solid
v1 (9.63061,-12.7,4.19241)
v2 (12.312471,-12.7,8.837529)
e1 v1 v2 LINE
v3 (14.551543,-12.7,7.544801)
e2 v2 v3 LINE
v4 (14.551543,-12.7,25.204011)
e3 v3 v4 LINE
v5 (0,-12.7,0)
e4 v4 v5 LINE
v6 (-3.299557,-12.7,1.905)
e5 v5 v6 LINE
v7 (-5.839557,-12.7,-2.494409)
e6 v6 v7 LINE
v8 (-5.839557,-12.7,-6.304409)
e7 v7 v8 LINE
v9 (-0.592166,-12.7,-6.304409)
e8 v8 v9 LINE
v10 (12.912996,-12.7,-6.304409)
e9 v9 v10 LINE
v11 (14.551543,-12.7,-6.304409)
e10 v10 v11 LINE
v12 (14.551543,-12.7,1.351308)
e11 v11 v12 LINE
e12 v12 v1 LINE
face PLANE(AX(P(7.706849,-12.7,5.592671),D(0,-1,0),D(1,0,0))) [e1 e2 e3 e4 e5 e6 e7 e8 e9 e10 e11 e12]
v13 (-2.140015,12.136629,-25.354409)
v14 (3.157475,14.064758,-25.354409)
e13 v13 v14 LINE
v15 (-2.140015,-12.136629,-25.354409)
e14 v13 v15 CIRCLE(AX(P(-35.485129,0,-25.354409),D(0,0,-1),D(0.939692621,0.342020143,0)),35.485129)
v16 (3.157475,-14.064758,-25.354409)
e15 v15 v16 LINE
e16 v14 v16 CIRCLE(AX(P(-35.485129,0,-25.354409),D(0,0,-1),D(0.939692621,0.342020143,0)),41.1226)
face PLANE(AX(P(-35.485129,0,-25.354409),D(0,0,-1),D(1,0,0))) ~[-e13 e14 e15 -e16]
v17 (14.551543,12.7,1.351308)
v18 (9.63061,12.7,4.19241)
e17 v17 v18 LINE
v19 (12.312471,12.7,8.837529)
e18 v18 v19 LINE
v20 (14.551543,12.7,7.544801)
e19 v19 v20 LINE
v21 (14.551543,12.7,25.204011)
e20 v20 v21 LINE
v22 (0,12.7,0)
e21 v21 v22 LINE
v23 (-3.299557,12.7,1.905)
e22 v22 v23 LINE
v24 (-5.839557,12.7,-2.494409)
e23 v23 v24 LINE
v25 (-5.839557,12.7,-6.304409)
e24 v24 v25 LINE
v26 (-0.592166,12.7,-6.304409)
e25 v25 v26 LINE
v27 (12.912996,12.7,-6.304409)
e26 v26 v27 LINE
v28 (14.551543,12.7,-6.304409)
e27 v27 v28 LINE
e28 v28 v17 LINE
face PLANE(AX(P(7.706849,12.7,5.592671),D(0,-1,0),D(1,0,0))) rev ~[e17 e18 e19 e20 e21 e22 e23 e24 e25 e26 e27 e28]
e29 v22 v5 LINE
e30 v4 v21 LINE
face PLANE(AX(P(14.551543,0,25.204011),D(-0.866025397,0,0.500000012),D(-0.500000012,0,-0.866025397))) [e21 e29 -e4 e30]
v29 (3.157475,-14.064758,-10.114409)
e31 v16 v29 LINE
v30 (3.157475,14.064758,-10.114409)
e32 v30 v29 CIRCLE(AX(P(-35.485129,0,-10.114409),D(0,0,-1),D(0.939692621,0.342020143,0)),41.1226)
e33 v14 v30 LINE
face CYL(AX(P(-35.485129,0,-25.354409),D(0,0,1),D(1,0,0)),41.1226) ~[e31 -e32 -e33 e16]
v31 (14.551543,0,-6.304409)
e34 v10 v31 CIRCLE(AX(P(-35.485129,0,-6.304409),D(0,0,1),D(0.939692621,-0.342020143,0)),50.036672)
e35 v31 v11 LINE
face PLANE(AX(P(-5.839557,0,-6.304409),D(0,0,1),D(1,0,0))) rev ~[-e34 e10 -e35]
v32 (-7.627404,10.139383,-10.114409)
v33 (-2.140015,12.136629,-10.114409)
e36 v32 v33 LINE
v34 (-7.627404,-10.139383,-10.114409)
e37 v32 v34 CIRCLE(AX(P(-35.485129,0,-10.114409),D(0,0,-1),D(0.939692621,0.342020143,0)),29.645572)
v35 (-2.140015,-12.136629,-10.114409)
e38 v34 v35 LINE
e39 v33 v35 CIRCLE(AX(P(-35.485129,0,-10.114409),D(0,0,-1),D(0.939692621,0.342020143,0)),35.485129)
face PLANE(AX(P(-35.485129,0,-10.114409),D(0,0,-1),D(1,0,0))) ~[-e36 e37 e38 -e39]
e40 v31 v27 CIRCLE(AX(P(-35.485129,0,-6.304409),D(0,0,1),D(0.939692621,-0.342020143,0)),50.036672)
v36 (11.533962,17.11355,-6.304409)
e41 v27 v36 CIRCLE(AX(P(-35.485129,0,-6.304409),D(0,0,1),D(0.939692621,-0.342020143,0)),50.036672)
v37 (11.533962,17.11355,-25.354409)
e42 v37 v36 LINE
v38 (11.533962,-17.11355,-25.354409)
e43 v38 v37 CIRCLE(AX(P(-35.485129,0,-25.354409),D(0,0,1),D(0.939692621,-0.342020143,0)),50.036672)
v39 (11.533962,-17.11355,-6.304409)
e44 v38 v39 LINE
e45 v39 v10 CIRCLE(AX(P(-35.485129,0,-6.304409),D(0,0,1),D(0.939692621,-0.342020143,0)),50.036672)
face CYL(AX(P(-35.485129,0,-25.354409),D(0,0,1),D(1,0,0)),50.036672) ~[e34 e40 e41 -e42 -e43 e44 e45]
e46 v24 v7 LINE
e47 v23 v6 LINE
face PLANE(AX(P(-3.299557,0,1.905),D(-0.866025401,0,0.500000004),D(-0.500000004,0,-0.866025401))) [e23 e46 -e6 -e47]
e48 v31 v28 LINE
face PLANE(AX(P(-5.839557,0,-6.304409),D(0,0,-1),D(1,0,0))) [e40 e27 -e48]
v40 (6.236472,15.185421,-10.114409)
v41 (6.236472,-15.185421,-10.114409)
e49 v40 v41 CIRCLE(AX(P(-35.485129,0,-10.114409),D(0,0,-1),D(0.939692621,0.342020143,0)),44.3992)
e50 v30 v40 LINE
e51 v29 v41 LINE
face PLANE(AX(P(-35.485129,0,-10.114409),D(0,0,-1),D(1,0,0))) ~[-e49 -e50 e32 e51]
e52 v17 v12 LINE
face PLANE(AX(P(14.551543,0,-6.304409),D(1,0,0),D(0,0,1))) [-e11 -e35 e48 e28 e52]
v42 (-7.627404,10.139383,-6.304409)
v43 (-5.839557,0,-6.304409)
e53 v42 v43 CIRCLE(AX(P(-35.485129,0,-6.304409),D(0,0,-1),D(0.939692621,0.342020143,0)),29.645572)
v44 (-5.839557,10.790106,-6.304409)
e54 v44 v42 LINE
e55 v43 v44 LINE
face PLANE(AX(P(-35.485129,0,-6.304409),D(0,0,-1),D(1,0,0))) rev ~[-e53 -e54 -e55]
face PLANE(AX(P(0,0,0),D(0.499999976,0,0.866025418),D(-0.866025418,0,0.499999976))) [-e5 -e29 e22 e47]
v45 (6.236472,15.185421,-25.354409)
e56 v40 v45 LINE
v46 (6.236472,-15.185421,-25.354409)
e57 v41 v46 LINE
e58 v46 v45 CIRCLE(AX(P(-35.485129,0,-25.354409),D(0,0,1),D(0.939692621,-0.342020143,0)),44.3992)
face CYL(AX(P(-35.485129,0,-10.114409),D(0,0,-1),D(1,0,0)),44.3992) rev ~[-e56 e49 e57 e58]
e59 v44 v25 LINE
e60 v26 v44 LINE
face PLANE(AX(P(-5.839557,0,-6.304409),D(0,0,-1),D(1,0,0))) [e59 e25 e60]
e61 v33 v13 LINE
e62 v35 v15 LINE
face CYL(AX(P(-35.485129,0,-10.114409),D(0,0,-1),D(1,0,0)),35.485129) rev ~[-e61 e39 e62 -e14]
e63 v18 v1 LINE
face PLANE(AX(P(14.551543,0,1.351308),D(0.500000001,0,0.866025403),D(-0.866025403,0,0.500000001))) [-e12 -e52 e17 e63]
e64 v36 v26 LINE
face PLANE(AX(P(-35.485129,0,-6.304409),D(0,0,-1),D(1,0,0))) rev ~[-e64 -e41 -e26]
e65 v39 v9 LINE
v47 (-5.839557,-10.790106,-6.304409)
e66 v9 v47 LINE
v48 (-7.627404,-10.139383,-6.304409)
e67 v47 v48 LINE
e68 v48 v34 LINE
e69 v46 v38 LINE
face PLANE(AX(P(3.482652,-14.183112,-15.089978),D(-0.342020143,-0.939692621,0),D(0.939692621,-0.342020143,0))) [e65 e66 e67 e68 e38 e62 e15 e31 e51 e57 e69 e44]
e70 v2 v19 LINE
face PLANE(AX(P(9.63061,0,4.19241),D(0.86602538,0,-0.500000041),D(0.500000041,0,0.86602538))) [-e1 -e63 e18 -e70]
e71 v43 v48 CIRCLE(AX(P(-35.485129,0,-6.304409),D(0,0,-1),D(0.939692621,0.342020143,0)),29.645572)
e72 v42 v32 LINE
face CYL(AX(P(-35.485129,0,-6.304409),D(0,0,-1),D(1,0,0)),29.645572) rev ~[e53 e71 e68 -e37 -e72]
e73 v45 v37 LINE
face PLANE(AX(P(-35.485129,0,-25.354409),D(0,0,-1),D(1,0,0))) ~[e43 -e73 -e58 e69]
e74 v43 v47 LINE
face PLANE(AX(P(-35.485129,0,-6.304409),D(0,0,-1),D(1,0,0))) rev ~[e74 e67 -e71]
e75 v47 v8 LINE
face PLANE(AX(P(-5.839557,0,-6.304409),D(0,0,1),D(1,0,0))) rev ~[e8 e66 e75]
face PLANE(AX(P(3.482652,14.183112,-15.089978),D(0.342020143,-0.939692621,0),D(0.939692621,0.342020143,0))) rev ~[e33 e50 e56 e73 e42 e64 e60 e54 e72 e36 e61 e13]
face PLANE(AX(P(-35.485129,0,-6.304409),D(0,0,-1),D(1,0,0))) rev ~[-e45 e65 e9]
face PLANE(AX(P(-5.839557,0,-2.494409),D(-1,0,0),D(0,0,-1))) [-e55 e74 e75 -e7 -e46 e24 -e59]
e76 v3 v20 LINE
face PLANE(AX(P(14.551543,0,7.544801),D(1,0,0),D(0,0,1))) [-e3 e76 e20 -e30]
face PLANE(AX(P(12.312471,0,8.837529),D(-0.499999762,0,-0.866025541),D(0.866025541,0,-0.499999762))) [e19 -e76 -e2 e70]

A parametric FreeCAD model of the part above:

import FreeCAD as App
import Part
import Sketcher

V = App.Vector
Q = App.Units.Quantity

doc = App.newDocument("Part")
body = doc.addObject("PartDesign::Body", "Body")

sketch1 = doc.addObject("Sketcher::SketchObject", "Sketch")
body.addObject(sketch1)
sketch1.AttachmentSupport = (doc.XZ_Plane, [""])
sketch1.MapMode = "FlatFace"
sketch1.addGeometry([
    Part.LineSegment(V(14.551543, -6.304409, 0), V(-5.839557, -6.304409, 0)),
    Part.LineSegment(V(-5.839557, -6.304409, 0), V(-5.839557, -10.114409, 0)),
    Part.LineSegment(V(-5.839557, -10.114409, 0), V(0, -10.114409, 0)),
    Part.LineSegment(V(0, -10.114409, 0), V(0, -25.354409, 0)),
    Part.LineSegment(V(0, -25.354409, 0), V(5.637471, -25.354409, 0)),
    Part.LineSegment(V(5.637471, -25.354409, 0), V(5.637471, -10.114409, 0)),
    Part.LineSegment(V(5.637471, -10.114409, 0), V(8.914071, -10.114409, 0)),
    Part.LineSegment(V(8.914071, -10.114409, 0), V(8.914071, -25.354409, 0)),
    Part.LineSegment(V(8.914071, -25.354409, 0), V(14.551543, -25.354409, 0)),
    Part.LineSegment(V(14.551543, -25.354409, 0), V(14.551543, -6.304409, 0)),
], False)
sketch1.addGeometry(Part.LineSegment(V(-35.485129, -25.354409, 0), V(-35.485129, -6.304409, 0)), True)
sketch1.addConstraint([
    Sketcher.Constraint("Coincident", 0, 2, 1, 1),
    Sketcher.Constraint("Coincident", 1, 2, 2, 1),
    Sketcher.Constraint("Coincident", 2, 2, 3, 1),
    Sketcher.Constraint("Coincident", 3, 2, 4, 1),
    Sketcher.Constraint("Coincident", 4, 2, 5, 1),
    Sketcher.Constraint("Coincident", 5, 2, 6, 1),
    Sketcher.Constraint("Coincident", 6, 2, 7, 1),
    Sketcher.Constraint("Coincident", 7, 2, 8, 1),
    Sketcher.Constraint("Coincident", 8, 2, 9, 1),
    Sketcher.Constraint("Coincident", 9, 2, 0, 1),
    Sketcher.Constraint("Horizontal", 0),
    Sketcher.Constraint("Vertical", 1),
    Sketcher.Constraint("Horizontal", 2),
    Sketcher.Constraint("Vertical", 3),
    Sketcher.Constraint("Horizontal", 4),
    Sketcher.Constraint("Vertical", 5),
    Sketcher.Constraint("Horizontal", 6),
    Sketcher.Constraint("Vertical", 7),
    Sketcher.Constraint("Horizontal", 8),
    Sketcher.Constraint("Vertical", 9),
    Sketcher.Constraint("Vertical", 10),
    Sketcher.Constraint("PointOnObject", 2, 2, -2),
    Sketcher.Constraint("Horizontal", 2, 2, 5, 2),
    Sketcher.Constraint("Horizontal", 4, 2, 7, 2),
    Sketcher.Constraint("Horizontal", 8, 2, 10, 1),
    Sketcher.Constraint("Horizontal", 9, 2, 10, 2),
    Sketcher.Constraint("Equal", 4, 8),
    Sketcher.Constraint("DistanceY", 3, 2, 3, 1, Q("0.6 in")),
    Sketcher.Constraint("DistanceY", 1, 2, 1, 1, Q("0.15 in")),
    Sketcher.Constraint("DistanceX", 6, 1, 6, 2, Q("0.129 in")),
    Sketcher.Constraint("DistanceX", 10, 1, 4, 2, Q("1.619 in")),
    Sketcher.Constraint("DistanceX", 0, 2, 0, 1, Q("20.3911 mm")),
    Sketcher.Constraint("DistanceX", 4, 1, 4, 2, Q("5.637471 mm")),
    Sketcher.Constraint("DistanceY", 0, 2, -1, 1, Q("6.304409 mm")),
])
revolution = doc.addObject("PartDesign::Revolution", "Revolution")
body.addObject(revolution)
revolution.Profile = sketch1
revolution.ReferenceAxis = (sketch1, ["Axis0"])
revolution.Angle = 20

sketch2 = doc.addObject("Sketcher::SketchObject", "Sketch001")
body.addObject(sketch2)
sketch2.AttachmentSupport = (doc.XZ_Plane, [""])
sketch2.MapMode = "FlatFace"
sketch2.addGeometry([
    Part.LineSegment(V(14.551543, -6.304409, 0), V(-5.839557, -6.304409, 0)),
    Part.LineSegment(V(-5.839557, -6.304409, 0), V(-5.839557, -10.114409, 0)),
    Part.LineSegment(V(-5.839557, -10.114409, 0), V(0, -10.114409, 0)),
    Part.LineSegment(V(0, -10.114409, 0), V(0, -25.354409, 0)),
    Part.LineSegment(V(0, -25.354409, 0), V(5.637471, -25.354409, 0)),
    Part.LineSegment(V(5.637471, -25.354409, 0), V(5.637471, -10.114409, 0)),
    Part.LineSegment(V(5.637471, -10.114409, 0), V(8.914071, -10.114409, 0)),
    Part.LineSegment(V(8.914071, -10.114409, 0), V(8.914071, -25.354409, 0)),
    Part.LineSegment(V(8.914071, -25.354409, 0), V(14.551543, -25.354409, 0)),
    Part.LineSegment(V(14.551543, -25.354409, 0), V(14.551543, -6.304409, 0)),
], False)
sketch2.addGeometry(Part.LineSegment(V(-35.485129, -6.304409, 0), V(-35.485129, -25.354409, 0)), True)
sketch2.addConstraint([
    Sketcher.Constraint("Coincident", 0, 2, 1, 1),
    Sketcher.Constraint("Coincident", 1, 2, 2, 1),
    Sketcher.Constraint("Coincident", 2, 2, 3, 1),
    Sketcher.Constraint("Coincident", 3, 2, 4, 1),
    Sketcher.Constraint("Coincident", 4, 2, 5, 1),
    Sketcher.Constraint("Coincident", 5, 2, 6, 1),
    Sketcher.Constraint("Coincident", 6, 2, 7, 1),
    Sketcher.Constraint("Coincident", 7, 2, 8, 1),
    Sketcher.Constraint("Coincident", 8, 2, 9, 1),
    Sketcher.Constraint("Coincident", 9, 2, 0, 1),
    Sketcher.Constraint("Horizontal", 0),
    Sketcher.Constraint("Vertical", 1),
    Sketcher.Constraint("Horizontal", 2),
    Sketcher.Constraint("Vertical", 3),
    Sketcher.Constraint("Horizontal", 4),
    Sketcher.Constraint("Vertical", 5),
    Sketcher.Constraint("Horizontal", 6),
    Sketcher.Constraint("Vertical", 7),
    Sketcher.Constraint("Horizontal", 8),
    Sketcher.Constraint("Vertical", 9),
    Sketcher.Constraint("Vertical", 10),
    Sketcher.Constraint("PointOnObject", 2, 2, -2),
    Sketcher.Constraint("Horizontal", 2, 2, 5, 2),
    Sketcher.Constraint("Horizontal", 4, 2, 7, 2),
    Sketcher.Constraint("Horizontal", 9, 2, 10, 1),
    Sketcher.Constraint("Horizontal", 8, 2, 10, 2),
    Sketcher.Constraint("Equal", 4, 8),
    Sketcher.Constraint("DistanceY", 3, 2, 3, 1, Q("0.6 in")),
    Sketcher.Constraint("DistanceY", 1, 2, 1, 1, Q("0.15 in")),
    Sketcher.Constraint("DistanceX", 6, 1, 6, 2, Q("0.129 in")),
    Sketcher.Constraint("DistanceX", 10, 1, 5, 2, Q("1.619 in")),
    Sketcher.Constraint("DistanceX", 0, 2, 0, 1, Q("20.3911 mm")),
    Sketcher.Constraint("DistanceX", 4, 1, 4, 2, Q("5.637471 mm")),
    Sketcher.Constraint("DistanceY", 0, 2, -1, 1, Q("6.304409 mm")),
])
revolution2 = doc.addObject("PartDesign::Revolution", "Revolution001")
body.addObject(revolution2)
revolution2.Profile = sketch2
revolution2.ReferenceAxis = (sketch2, ["Axis0"])
revolution2.Angle = 20

sketch3 = doc.addObject("Sketcher::SketchObject", "Sketch002")
body.addObject(sketch3)
sketch3.AttachmentSupport = (doc.XZ_Plane, [""])
sketch3.MapMode = "FlatFace"
sketch3.addGeometry([
    Part.LineSegment(V(14.551543, 25.204011, 0), V(0, 0, 0)),
    Part.LineSegment(V(0, 0, 0), V(-3.299557, 1.905, 0)),
    Part.LineSegment(V(-3.299557, 1.905, 0), V(-5.839557, -2.494409, 0)),
    Part.LineSegment(V(-5.839557, -2.494409, 0), V(-5.839557, -6.304409, 0)),
    Part.LineSegment(V(-5.839557, -6.304409, 0), V(14.551543, -6.304409, 0)),
    Part.LineSegment(V(14.551543, -6.304409, 0), V(14.551543, 1.351308, 0)),
    Part.LineSegment(V(14.551543, 1.351308, 0), V(9.63061, 4.19241, 0)),
    Part.LineSegment(V(9.63061, 4.19241, 0), V(12.312471, 8.837529, 0)),
    Part.LineSegment(V(12.312471, 8.837529, 0), V(14.551543, 7.544801, 0)),
    Part.LineSegment(V(14.551543, 7.544801, 0), V(14.551543, 25.204011, 0)),
], False)
sketch3.addConstraint([
    Sketcher.Constraint("Coincident", 0, 2, 1, 1),
    Sketcher.Constraint("Coincident", 1, 2, 2, 1),
    Sketcher.Constraint("Coincident", 2, 2, 3, 1),
    Sketcher.Constraint("Coincident", 3, 2, 4, 1),
    Sketcher.Constraint("Coincident", 4, 2, 5, 1),
    Sketcher.Constraint("Coincident", 5, 2, 6, 1),
    Sketcher.Constraint("Coincident", 6, 2, 7, 1),
    Sketcher.Constraint("Coincident", 7, 2, 8, 1),
    Sketcher.Constraint("Coincident", 8, 2, 9, 1),
    Sketcher.Constraint("Coincident", 9, 2, 0, 1),
    Sketcher.Constraint("Vertical", 3),
    Sketcher.Constraint("Horizontal", 4),
    Sketcher.Constraint("Vertical", 5),
    Sketcher.Constraint("Vertical", 9),
    Sketcher.Constraint("Coincident", 0, 2, -1, 1),
    Sketcher.Constraint("Perpendicular", 0, 1),
    Sketcher.Constraint("Perpendicular", 1, 2),
    Sketcher.Constraint("Perpendicular", 2, 6),
    Sketcher.Constraint("Perpendicular", 6, 7),
    Sketcher.Constraint("Perpendicular", 7, 8),
    Sketcher.Constraint("Vertical", 5, 2, 8, 2),
    Sketcher.Constraint("Angle", 0, Q("-120.000001 deg")),
    Sketcher.Constraint("Distance", 2, Q("0.2 in")),
    Sketcher.Constraint("DistanceY", 3, 2, 3, 1, Q("0.15 in")),
    Sketcher.Constraint("Distance", 1, Q("0.15 in")),
    Sketcher.Constraint("DistanceX", 4, 1, 4, 2, Q("20.3911 mm")),
    Sketcher.Constraint("DistanceY", 9, 1, 9, 2, Q("17.65921 mm")),
    Sketcher.Constraint("DistanceY", 5, 2, 6, 2, Q("2.841102 mm")),
    Sketcher.Constraint("DistanceY", 6, 2, 9, 2, Q("21.011601 mm")),
])
pad1 = doc.addObject("PartDesign::Pad", "Pad")
body.addObject(pad1)
pad1.Profile = sketch3
pad1.Length = Q("0.5 in")

sketch4 = doc.addObject("Sketcher::SketchObject", "Sketch003")
body.addObject(sketch4)
sketch4.AttachmentSupport = (doc.XZ_Plane, [""])
sketch4.MapMode = "FlatFace"
sketch4.addGeometry([
    Part.LineSegment(V(14.551543, 25.204011, 0), V(0, 0, 0)),
    Part.LineSegment(V(0, 0, 0), V(-3.299557, 1.905, 0)),
    Part.LineSegment(V(-3.299557, 1.905, 0), V(-5.839557, -2.494409, 0)),
    Part.LineSegment(V(-5.839557, -2.494409, 0), V(-5.839557, -6.304409, 0)),
    Part.LineSegment(V(-5.839557, -6.304409, 0), V(14.551543, -6.304409, 0)),
    Part.LineSegment(V(14.551543, -6.304409, 0), V(14.551543, 1.351308, 0)),
    Part.LineSegment(V(14.551543, 1.351308, 0), V(9.63061, 4.19241, 0)),
    Part.LineSegment(V(9.63061, 4.19241, 0), V(12.312471, 8.837529, 0)),
    Part.LineSegment(V(12.312471, 8.837529, 0), V(14.551543, 7.544801, 0)),
    Part.LineSegment(V(14.551543, 7.544801, 0), V(14.551543, 25.204011, 0)),
], False)
sketch4.addConstraint([
    Sketcher.Constraint("Coincident", 0, 2, 1, 1),
    Sketcher.Constraint("Coincident", 1, 2, 2, 1),
    Sketcher.Constraint("Coincident", 2, 2, 3, 1),
    Sketcher.Constraint("Coincident", 3, 2, 4, 1),
    Sketcher.Constraint("Coincident", 4, 2, 5, 1),
    Sketcher.Constraint("Coincident", 5, 2, 6, 1),
    Sketcher.Constraint("Coincident", 6, 2, 7, 1),
    Sketcher.Constraint("Coincident", 7, 2, 8, 1),
    Sketcher.Constraint("Coincident", 8, 2, 9, 1),
    Sketcher.Constraint("Coincident", 9, 2, 0, 1),
    Sketcher.Constraint("Vertical", 3),
    Sketcher.Constraint("Horizontal", 4),
    Sketcher.Constraint("Vertical", 5),
    Sketcher.Constraint("Vertical", 9),
    Sketcher.Constraint("Coincident", 0, 2, -1, 1),
    Sketcher.Constraint("Perpendicular", 0, 1),
    Sketcher.Constraint("Perpendicular", 1, 2),
    Sketcher.Constraint("Perpendicular", 2, 6),
    Sketcher.Constraint("Perpendicular", 6, 7),
    Sketcher.Constraint("Perpendicular", 7, 8),
    Sketcher.Constraint("Vertical", 5, 2, 8, 2),
    Sketcher.Constraint("Angle", 0, Q("-120.000001 deg")),
    Sketcher.Constraint("Distance", 2, Q("0.2 in")),
    Sketcher.Constraint("DistanceY", 3, 2, 3, 1, Q("0.15 in")),
    Sketcher.Constraint("Distance", 1, Q("0.15 in")),
    Sketcher.Constraint("DistanceX", 4, 1, 4, 2, Q("20.3911 mm")),
    Sketcher.Constraint("DistanceY", 9, 1, 9, 2, Q("17.65921 mm")),
    Sketcher.Constraint("DistanceY", 5, 2, 6, 2, Q("2.841102 mm")),
    Sketcher.Constraint("DistanceY", 6, 2, 9, 2, Q("21.011601 mm")),
])
pad2 = doc.addObject("PartDesign::Pad", "Pad001")
body.addObject(pad2)
pad2.Profile = sketch4
pad2.Length = Q("0.5 in")
pad2.Reversed = True

doc.recompute()
